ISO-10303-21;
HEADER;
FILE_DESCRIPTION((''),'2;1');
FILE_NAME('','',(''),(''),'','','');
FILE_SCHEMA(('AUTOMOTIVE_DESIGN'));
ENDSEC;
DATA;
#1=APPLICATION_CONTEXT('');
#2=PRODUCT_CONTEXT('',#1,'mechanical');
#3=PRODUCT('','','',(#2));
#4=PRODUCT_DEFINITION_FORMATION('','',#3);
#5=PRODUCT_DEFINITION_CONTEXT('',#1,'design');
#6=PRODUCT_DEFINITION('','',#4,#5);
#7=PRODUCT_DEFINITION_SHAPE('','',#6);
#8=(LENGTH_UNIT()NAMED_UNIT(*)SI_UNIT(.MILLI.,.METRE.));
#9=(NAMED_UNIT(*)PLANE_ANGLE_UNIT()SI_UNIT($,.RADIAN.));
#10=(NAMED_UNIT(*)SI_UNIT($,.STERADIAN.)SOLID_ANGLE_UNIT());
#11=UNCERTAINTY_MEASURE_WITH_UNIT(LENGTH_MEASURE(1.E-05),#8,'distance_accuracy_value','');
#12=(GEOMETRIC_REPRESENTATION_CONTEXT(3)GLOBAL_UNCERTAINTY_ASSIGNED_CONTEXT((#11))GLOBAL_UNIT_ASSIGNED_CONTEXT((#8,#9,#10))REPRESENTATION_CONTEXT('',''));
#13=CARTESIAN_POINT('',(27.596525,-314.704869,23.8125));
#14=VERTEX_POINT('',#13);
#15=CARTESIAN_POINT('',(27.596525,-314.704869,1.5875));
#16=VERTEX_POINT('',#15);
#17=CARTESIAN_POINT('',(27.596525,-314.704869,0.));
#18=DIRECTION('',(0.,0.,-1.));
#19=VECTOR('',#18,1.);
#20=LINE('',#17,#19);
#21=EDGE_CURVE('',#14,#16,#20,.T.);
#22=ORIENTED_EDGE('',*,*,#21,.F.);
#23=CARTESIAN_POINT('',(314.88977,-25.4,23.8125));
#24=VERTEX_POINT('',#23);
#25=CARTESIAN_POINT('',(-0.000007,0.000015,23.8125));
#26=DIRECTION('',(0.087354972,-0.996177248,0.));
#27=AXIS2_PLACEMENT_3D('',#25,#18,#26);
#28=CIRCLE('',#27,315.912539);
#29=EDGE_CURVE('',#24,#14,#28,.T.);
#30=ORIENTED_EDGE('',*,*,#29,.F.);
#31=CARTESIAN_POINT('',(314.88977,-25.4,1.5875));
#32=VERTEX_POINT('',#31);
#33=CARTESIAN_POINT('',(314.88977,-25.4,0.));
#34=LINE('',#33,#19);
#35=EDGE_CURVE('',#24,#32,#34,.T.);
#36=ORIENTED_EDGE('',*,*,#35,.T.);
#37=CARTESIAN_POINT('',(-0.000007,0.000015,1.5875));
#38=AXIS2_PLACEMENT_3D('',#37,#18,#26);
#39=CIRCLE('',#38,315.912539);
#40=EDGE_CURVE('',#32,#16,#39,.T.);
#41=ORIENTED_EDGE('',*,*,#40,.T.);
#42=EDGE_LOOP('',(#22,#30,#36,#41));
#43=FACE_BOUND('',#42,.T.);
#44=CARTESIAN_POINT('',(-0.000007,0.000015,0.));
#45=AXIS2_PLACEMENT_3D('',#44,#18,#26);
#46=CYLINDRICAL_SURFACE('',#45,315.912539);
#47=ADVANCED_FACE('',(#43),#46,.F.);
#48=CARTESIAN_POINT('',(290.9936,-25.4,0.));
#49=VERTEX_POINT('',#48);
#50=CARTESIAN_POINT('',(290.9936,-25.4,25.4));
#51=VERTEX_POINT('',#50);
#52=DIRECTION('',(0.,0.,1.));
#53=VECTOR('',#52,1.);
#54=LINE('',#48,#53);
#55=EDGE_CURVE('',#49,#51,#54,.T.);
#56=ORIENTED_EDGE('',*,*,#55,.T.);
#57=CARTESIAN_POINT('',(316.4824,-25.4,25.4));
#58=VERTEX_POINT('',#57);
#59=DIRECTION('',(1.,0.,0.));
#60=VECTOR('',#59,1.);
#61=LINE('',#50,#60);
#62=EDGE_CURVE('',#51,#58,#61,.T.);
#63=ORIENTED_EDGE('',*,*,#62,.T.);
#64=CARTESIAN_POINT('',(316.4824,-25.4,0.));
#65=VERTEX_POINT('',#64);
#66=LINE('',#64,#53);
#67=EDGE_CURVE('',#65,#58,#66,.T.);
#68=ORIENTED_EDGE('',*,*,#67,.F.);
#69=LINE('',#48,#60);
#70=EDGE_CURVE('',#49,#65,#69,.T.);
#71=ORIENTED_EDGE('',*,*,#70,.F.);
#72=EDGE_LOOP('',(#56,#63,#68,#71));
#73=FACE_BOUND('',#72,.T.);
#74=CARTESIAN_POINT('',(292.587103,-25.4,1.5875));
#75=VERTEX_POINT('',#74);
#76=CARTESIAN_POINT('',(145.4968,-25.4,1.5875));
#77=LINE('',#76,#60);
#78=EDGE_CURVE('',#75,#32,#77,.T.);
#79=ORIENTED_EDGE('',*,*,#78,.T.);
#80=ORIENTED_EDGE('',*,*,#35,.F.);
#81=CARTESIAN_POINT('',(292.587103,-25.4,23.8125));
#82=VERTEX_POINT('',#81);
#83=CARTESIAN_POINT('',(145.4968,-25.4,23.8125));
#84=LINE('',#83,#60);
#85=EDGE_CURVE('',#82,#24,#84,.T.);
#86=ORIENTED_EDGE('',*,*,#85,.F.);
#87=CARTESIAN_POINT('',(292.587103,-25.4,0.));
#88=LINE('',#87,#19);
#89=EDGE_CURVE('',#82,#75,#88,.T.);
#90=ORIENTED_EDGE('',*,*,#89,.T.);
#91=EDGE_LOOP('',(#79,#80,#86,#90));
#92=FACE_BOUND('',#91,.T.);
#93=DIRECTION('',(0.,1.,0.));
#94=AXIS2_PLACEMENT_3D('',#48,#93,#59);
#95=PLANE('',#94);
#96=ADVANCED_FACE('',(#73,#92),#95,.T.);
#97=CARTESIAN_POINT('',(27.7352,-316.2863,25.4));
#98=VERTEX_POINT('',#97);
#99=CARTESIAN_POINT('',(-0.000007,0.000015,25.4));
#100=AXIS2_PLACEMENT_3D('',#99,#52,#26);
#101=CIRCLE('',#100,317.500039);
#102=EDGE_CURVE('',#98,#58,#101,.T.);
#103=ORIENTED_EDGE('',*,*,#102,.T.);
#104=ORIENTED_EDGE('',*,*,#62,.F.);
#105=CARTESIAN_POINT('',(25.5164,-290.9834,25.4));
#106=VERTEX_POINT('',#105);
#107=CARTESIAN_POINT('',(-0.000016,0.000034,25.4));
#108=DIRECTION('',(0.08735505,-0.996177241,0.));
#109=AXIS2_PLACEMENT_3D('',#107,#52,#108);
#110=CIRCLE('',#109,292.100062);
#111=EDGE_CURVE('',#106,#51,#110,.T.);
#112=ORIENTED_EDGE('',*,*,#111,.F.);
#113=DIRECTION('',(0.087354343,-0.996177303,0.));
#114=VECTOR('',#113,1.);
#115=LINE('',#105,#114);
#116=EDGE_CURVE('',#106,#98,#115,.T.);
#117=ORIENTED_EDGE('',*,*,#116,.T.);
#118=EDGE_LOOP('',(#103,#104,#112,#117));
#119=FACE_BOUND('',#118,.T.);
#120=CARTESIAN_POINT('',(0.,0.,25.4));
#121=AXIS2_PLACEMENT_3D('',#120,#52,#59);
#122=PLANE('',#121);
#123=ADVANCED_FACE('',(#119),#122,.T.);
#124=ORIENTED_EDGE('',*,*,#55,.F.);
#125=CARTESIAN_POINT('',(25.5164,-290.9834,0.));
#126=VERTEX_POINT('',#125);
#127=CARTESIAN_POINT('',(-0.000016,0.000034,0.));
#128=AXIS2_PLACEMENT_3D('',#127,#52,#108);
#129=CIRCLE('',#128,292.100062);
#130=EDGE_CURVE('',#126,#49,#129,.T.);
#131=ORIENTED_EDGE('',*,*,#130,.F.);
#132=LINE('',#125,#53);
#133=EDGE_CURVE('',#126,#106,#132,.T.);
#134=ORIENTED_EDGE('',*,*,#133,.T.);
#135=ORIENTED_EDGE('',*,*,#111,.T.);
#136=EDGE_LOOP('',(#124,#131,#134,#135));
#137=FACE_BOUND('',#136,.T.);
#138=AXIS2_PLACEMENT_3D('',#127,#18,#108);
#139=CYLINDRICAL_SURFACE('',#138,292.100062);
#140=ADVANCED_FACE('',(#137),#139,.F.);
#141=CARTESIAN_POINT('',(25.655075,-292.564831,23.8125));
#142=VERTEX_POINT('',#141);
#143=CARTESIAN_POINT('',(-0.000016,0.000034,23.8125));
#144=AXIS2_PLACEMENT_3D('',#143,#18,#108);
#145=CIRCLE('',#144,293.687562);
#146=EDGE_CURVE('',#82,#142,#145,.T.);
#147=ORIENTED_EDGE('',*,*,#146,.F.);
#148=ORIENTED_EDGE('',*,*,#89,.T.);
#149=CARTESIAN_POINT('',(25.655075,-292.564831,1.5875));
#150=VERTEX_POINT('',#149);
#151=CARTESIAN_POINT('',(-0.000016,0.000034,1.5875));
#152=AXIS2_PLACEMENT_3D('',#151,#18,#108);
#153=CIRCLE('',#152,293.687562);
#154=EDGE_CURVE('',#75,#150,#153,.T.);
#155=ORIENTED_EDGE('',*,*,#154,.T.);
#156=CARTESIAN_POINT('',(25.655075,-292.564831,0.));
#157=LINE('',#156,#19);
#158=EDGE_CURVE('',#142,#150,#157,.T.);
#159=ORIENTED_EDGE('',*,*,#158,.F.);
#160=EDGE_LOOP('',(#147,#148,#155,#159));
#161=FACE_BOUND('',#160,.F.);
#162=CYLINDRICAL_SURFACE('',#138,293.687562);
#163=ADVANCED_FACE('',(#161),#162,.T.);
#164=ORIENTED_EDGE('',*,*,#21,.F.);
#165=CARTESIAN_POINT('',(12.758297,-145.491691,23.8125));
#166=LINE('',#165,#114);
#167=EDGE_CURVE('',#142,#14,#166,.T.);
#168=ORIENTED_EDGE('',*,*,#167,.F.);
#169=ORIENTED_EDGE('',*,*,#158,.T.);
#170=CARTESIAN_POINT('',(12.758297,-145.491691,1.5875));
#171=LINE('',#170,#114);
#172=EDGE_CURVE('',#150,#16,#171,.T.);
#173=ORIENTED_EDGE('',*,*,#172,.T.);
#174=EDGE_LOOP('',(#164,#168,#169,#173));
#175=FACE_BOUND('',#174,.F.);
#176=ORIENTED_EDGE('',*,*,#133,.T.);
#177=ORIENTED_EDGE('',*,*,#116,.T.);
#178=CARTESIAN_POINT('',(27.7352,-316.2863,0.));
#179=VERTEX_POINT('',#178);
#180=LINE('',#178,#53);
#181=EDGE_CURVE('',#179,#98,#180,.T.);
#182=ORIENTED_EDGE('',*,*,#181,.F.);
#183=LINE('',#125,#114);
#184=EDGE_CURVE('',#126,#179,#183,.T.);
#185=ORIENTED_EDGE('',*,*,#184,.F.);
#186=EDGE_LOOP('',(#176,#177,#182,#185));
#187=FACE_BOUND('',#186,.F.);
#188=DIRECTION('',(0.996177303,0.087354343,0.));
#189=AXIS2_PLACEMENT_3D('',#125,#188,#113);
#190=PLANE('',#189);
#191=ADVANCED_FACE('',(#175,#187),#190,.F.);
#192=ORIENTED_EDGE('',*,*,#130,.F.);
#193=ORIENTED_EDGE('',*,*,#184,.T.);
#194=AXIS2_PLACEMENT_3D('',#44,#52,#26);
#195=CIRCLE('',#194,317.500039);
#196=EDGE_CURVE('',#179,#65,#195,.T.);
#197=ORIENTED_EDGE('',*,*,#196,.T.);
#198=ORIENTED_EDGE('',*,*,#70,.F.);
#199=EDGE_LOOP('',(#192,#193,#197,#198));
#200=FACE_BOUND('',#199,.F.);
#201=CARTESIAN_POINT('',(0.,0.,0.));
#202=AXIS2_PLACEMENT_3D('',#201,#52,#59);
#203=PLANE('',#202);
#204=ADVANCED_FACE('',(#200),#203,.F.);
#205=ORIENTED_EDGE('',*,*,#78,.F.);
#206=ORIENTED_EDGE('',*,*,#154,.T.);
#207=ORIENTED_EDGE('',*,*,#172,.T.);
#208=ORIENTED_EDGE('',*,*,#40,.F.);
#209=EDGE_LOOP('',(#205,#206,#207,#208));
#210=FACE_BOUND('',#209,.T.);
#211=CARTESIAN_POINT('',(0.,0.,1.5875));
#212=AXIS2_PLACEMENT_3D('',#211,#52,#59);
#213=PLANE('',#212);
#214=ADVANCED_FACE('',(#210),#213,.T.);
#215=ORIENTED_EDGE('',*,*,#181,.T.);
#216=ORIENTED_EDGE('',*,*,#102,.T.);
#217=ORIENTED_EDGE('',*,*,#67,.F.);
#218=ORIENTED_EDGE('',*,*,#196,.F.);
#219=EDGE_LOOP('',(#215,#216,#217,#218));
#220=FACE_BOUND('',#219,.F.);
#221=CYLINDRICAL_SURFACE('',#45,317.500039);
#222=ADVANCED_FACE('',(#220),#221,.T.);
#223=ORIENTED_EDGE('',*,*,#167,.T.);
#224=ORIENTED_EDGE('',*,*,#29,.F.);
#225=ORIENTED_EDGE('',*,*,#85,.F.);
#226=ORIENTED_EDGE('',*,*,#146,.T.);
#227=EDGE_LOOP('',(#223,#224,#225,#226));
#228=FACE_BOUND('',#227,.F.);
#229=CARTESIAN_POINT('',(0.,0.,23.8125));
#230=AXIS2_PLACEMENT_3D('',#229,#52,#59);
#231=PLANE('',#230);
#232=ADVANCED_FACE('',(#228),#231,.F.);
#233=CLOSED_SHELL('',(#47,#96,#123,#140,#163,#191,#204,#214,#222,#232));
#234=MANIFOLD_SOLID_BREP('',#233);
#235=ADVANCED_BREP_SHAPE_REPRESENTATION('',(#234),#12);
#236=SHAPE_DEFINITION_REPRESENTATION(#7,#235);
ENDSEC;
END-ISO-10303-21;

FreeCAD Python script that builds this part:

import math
import FreeCAD as App
import Part
import Sketcher
Q = App.Units.Quantity


def faces_at(feature, points):
    """Names of the faces that lie closest to the given points."""
    faces = feature.Shape.Faces
    near = lambda p: min(range(len(faces)), key=lambda i: faces[i].distToShape(Part.Vertex(*p))[0])
    return sorted({f"Face{near(p) + 1}" for p in points})

doc = App.newDocument("Part")
params = doc.addObject("Spreadsheet::Sheet", "Params")
for row, (alias, value) in enumerate([
    ("sketch1_radius", "11.5 in"),
    ("sketch1_length", "1 in"),
    ("pad1_length", "1 in"),
    ("thickness_wall", "0.0625 in"),
], start=1):
    params.set(f"A{row}", alias)
    params.set(f"B{row}", "=" + value)
    params.setAlias(f"B{row}", alias)

body = doc.addObject("PartDesign::Body", "Body")

# Sketch on XY plane
sketch1 = doc.addObject("Sketcher::SketchObject", "Sketch")
body.addObject(sketch1)
sketch1.AttachmentSupport = (doc.XY_Plane, [""])
sketch1.MapMode = "FlatFace"
sketch1.addGeometry([
    Part.ArcOfCircle(Part.Circle(App.Vector(0, 0, 0), App.Vector(0, 0, 1), 292.100027), math.radians(-84.988539), math.radians(-4.988541)),
    Part.LineSegment(App.Vector(25.5164, -290.9834, 0), App.Vector(27.7352, -316.2863, 0)),
    Part.ArcOfCircle(Part.Circle(App.Vector(0, 0, 0), App.Vector(0, 0, 1), 317.500023), math.radians(-84.988542), math.radians(-4.588565)),
    Part.LineSegment(App.Vector(316.4824, -25.4, 0), App.Vector(290.9936, -25.4, 0)),
], False)
sketch1.addConstraint([
    Sketcher.Constraint("Coincident", 0, 1, 1, 1),
    Sketcher.Constraint("Coincident", 1, 2, 2, 1),
    Sketcher.Constraint("Coincident", 2, 2, 3, 1),
    Sketcher.Constraint("Coincident", 3, 2, 0, 2),
    Sketcher.Constraint("Horizontal", 3),
    Sketcher.Constraint("Coincident", 0, 3, -1, 1),
    Sketcher.Constraint("Coincident", 2, 3, -1, 1),
    Sketcher.Constraint("Radius", 0, Q("11.5 in")),
    Sketcher.Constraint("Distance", 1, Q("1 in")),
    Sketcher.Constraint("DistanceY", 2, 2, -1, 1, Q("1 in")),
    Sketcher.Constraint("DistanceX", 1, 2, 2, 2, Q("11.368 in")),
    Sketcher.Constraint("DistanceX", -1, 1, 0, 1, 25.5164),
])
sketch1.setExpression("Constraints[7]", "Params.sketch1_radius")
sketch1.setExpression("Constraints[8]", "Params.sketch1_length")
pad1 = doc.addObject("PartDesign::Pad", "Pad")
body.addObject(pad1)
pad1.Profile = sketch1
pad1.setExpression("Length", "Params.pad1_length")
doc.recompute()

thickness = doc.addObject("PartDesign::Thickness", "Thickness")
body.addObject(thickness)
thickness.Base = (pad1, faces_at(pad1, [(299.49, -25.4, 8.467), (26.996, -307.852, 16.933)]))
thickness.setExpression("Value", "Params.thickness_wall")
thickness.Reversed = True
thickness.Join = "Intersection"

doc.recompute()
